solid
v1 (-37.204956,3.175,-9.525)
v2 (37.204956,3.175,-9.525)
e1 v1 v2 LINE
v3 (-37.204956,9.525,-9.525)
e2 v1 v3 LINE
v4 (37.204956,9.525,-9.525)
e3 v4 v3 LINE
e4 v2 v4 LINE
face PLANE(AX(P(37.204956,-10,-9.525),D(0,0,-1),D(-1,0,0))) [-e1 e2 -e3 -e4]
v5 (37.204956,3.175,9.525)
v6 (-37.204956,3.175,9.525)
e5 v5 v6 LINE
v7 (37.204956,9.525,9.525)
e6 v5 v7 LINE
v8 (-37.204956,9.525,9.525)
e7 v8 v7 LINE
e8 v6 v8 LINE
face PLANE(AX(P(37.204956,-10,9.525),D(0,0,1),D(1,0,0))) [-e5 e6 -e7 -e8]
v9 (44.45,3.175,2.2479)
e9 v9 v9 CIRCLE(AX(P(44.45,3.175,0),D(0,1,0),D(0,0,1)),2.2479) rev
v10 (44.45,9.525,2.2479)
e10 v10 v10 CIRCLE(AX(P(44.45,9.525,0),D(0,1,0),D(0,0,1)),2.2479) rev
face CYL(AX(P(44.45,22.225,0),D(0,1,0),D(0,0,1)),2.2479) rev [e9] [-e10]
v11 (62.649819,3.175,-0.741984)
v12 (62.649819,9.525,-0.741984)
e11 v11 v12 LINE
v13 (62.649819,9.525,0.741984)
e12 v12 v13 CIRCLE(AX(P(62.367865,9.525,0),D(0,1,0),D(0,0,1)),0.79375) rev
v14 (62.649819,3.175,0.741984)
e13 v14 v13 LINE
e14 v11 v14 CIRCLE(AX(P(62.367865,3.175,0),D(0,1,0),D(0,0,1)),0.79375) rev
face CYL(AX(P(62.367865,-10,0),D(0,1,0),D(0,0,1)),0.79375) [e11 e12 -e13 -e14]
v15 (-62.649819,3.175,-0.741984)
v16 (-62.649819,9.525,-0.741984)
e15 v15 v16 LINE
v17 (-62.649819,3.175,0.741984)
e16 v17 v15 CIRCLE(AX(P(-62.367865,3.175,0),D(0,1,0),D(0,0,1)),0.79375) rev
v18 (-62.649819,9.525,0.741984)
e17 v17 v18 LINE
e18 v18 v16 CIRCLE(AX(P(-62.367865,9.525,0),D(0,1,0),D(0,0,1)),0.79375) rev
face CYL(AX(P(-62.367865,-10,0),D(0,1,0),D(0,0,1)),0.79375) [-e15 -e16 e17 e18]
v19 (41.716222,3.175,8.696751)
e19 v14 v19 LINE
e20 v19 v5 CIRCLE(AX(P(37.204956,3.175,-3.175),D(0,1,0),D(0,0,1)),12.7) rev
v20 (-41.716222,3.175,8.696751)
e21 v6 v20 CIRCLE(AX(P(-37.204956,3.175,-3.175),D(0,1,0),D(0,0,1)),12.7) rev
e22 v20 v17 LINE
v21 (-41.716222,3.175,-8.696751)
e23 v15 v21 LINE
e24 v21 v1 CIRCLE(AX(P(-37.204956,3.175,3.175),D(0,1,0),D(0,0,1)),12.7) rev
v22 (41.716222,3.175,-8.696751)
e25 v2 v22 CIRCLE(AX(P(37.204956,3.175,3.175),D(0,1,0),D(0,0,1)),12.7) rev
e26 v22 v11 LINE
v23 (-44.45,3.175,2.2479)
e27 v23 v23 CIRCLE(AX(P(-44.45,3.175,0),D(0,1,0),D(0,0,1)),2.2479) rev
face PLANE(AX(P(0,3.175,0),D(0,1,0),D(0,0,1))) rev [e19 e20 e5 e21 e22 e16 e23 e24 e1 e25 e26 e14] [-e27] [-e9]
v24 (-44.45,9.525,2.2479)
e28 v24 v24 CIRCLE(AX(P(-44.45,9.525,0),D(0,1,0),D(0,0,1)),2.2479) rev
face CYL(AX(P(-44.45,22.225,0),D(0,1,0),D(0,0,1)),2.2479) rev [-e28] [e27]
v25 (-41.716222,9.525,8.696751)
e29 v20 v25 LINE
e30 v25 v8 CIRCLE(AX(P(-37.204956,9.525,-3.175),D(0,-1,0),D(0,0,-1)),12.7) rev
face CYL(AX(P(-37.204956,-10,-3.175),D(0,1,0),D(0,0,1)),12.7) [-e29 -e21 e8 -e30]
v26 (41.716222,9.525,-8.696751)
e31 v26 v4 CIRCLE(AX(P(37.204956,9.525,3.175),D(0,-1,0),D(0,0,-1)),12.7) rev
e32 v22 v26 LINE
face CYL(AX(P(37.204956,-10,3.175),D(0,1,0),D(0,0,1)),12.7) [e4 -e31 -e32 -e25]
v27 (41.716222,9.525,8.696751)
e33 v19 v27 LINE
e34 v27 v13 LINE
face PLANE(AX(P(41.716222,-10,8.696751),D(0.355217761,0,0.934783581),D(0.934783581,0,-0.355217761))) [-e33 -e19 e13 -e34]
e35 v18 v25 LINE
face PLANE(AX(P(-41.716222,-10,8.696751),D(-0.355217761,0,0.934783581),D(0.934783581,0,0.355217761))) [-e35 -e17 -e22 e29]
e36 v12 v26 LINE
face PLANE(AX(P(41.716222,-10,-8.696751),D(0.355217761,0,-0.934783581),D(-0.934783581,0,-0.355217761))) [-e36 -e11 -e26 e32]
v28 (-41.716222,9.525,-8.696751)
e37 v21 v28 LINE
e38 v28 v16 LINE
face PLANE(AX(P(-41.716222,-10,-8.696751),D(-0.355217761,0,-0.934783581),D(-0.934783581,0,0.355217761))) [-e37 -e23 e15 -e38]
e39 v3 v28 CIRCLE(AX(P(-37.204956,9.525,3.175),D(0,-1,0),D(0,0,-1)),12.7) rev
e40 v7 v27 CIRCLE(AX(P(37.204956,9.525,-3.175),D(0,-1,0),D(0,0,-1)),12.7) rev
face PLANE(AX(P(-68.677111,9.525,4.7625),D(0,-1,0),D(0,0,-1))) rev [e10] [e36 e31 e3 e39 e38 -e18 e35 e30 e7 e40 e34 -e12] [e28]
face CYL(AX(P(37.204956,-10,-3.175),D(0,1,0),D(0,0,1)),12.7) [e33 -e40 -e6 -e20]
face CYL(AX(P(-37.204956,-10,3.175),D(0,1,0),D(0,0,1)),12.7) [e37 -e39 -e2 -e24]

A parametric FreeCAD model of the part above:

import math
import FreeCAD as App
import Part
import Sketcher
Q = App.Units.Quantity


def edges_at(feature, points):
    """Names of the edges that pass closest to the given points."""
    edges = feature.Shape.Edges
    near = lambda p: min(range(len(edges)), key=lambda i: edges[i].distToShape(Part.Vertex(*p))[0])
    return sorted({f"Edge{near(p) + 1}" for p in points})


def add_polygon(sketch, points):
    """Adds a closed chain of lines whose ends are joined by coincident constraints."""
    first, n = sketch.GeometryCount, len(points)
    for a, b in zip(points, points[1:] + points[:1]):
        sketch.addGeometry(Part.LineSegment(App.Vector(*a, 0), App.Vector(*b, 0)), False)
    for i in range(n):
        sketch.addConstraint(Sketcher.Constraint("Coincident", first + i, 2, first + (i + 1) % n, 1))

doc = App.newDocument("Part")
body = doc.addObject("PartDesign::Body", "Body")

# Sketch on XZ plane
sketch1 = body.newObject("Sketcher::SketchObject", "Sketch")
sketch1.AttachmentSupport = (doc.getObject("XZ_Plane"), [""])
sketch1.MapMode = "FlatFace"
sketch1.addGeometry([
    Part.LineSegment(App.Vector(37.2, -9.5, 0), App.Vector(-37.2, -9.5, 0)),  # 0
    Part.ArcOfCircle(Part.Circle(App.Vector(-37.2, 3.2, 0), App.Vector(0, 0, 1), 12.7), math.radians(-111), math.radians(-90)),  # 1
    Part.LineSegment(App.Vector(-41.7, -8.7, 0), App.Vector(-62.6, -0.7, 0)),  # 2
    Part.ArcOfCircle(Part.Circle(App.Vector(-62.4, 0, 0), App.Vector(0, 0, 1), 0.8), math.radians(111), math.radians(249)),  # 3
    Part.LineSegment(App.Vector(-62.6, 0.7, 0), App.Vector(-41.7, 8.7, 0)),  # 4
    Part.ArcOfCircle(Part.Circle(App.Vector(-37.2, -3.2, 0), App.Vector(0, 0, 1), 12.7), math.radians(90), math.radians(111)),  # 5
    Part.LineSegment(App.Vector(-37.2, 9.5, 0), App.Vector(37.2, 9.5, 0)),  # 6
    Part.ArcOfCircle(Part.Circle(App.Vector(37.2, -3.2, 0), App.Vector(0, 0, 1), 12.7), math.radians(69), math.radians(90)),  # 7
    Part.LineSegment(App.Vector(41.7, 8.7, 0), App.Vector(62.6, 0.7, 0)),  # 8
    Part.ArcOfCircle(Part.Circle(App.Vector(62.4, 0, 0), App.Vector(0, 0, 1), 0.8), math.radians(-69), math.radians(69)),  # 9
    Part.LineSegment(App.Vector(62.6, -0.7, 0), App.Vector(41.7, -8.7, 0)),  # 10
    Part.ArcOfCircle(Part.Circle(App.Vector(37.2, 3.2, 0), App.Vector(0, 0, 1), 12.7), math.radians(-90), math.radians(-69)),  # 11
], False)
sketch1.addConstraint([
    Sketcher.Constraint("Tangent", 0, 2, 1, 2),
    Sketcher.Constraint("Tangent", 1, 1, 2, 1),
    Sketcher.Constraint("Tangent", 2, 2, 3, 2),
    Sketcher.Constraint("Tangent", 3, 1, 4, 1),
    Sketcher.Constraint("Tangent", 4, 2, 5, 2),
    Sketcher.Constraint("Tangent", 5, 1, 6, 1),
    Sketcher.Constraint("Tangent", 6, 2, 7, 2),
    Sketcher.Constraint("Tangent", 7, 1, 8, 1),
    Sketcher.Constraint("Tangent", 8, 2, 9, 2),
    Sketcher.Constraint("Tangent", 9, 1, 10, 1),
    Sketcher.Constraint("Tangent", 10, 2, 11, 2),
    Sketcher.Constraint("Tangent", 11, 1, 0, 1),
    Sketcher.Constraint("Horizontal", 0),
    Sketcher.Constraint("Horizontal", 6),
    Sketcher.Constraint("Equal", 1, 5),
    Sketcher.Constraint("Equal", 5, 7),
    Sketcher.Constraint("Equal", 3, 9),
    Sketcher.Constraint("Equal", 7, 11),
    Sketcher.Constraint("Symmetric", 1, 3, 7, 3, -1, 1),
    Sketcher.Constraint("Symmetric", 3, 3, 9, 3, -1, 1),
    Sketcher.Constraint("Symmetric", 4, 2, 7, 1, -2),
    Sketcher.Constraint("Parallel", 4, 10),
    Sketcher.Constraint("Radius", 1, Q("0.5 in")),
    Sketcher.Constraint("Radius", 3, Q("0.03125 in")),
    Sketcher.Constraint("DistanceY", 5, 3, 1, 3, Q("0.25 in")),
    Sketcher.Constraint("DistanceX", 0, 2, 0, 1, Q("74.409912 mm")),
    Sketcher.Constraint("DistanceX", 1, 1, -1, 1, Q("41.716222 mm")),
])
pad1 = body.newObject("PartDesign::Pad", "Pad")
pad1.Profile = sketch1
pad1.Type = "TwoLengths"
pad1.Length = Q("0.875 in")
pad1.Length2 = 10
pad1.Reversed = True

# Sketch on XY plane
sketch2 = body.newObject("Sketcher::SketchObject", "Sketch001")
sketch2.AttachmentSupport = (doc.getObject("XY_Plane"), [""])
sketch2.MapMode = "FlatFace"
sketch2.AttachmentOffset = App.Placement(App.Vector(0, 0, 0.375 * 25.4), App.Rotation())
add_polygon(sketch2, [(-69, 16), (-69, 10), (84, 10), (84, 16)])  # lines 0-3
sketch2.addConstraint([
    Sketcher.Constraint("Vertical", 0),
    Sketcher.Constraint("Horizontal", 1),
    Sketcher.Constraint("Vertical", 2),
    Sketcher.Constraint("Horizontal", 3),
    Sketcher.Constraint("DistanceY", 0, 2, 0, 1, Q("0.25 in")),
    Sketcher.Constraint("DistanceY", -1, 1, 0, 2, Q("0.375 in")),
    Sketcher.Constraint("DistanceX", 1, 1, 1, 2, Q("153.14354 mm")),
    Sketcher.Constraint("DistanceX", 0, 2, -1, 1, Q("68.677111 mm")),
])
pocket1 = body.newObject("PartDesign::Pocket", "Pocket")
pocket1.Profile = sketch2
pocket1.Length = Q("0.1875 in")

# Sketch on XY plane
sketch3 = body.newObject("Sketcher::SketchObject", "Sketch002")
sketch3.AttachmentSupport = (doc.getObject("XY_Plane"), [""])
sketch3.MapMode = "FlatFace"
sketch3.AttachmentOffset = App.Placement(App.Vector(0, 0, -0.375 * 25.4), App.Rotation())
add_polygon(sketch3, [(68, 16), (68, 10), (-85, 10), (-85, 16)])  # lines 0-3
sketch3.addConstraint([
    Sketcher.Constraint("Vertical", 0),
    Sketcher.Constraint("Horizontal", 1),
    Sketcher.Constraint("Vertical", 2),
    Sketcher.Constraint("Horizontal", 3),
    Sketcher.Constraint("DistanceY", 0, 2, 0, 1, Q("0.25 in")),
    Sketcher.Constraint("DistanceY", -1, 1, 0, 2, Q("0.375 in")),
    Sketcher.Constraint("DistanceX", 1, 2, 1, 1, Q("152.758435 mm")),
    Sketcher.Constraint("DistanceX", -1, 1, 0, 2, Q("67.778532 mm")),
])
pocket2 = body.newObject("PartDesign::Pocket", "Pocket001")
pocket2.Profile = sketch3
pocket2.Length = Q("0.1875 in")
pocket2.Reversed = True
doc.recompute()

fillet = body.newObject("PartDesign::Fillet", "Fillet")
fillet.Base = (pocket2, edges_at(pocket2, [(52.07, 12.7, -4.763)]))
fillet.Radius = Q("0.5 in")
doc.recompute()

fillet2 = body.newObject("PartDesign::Fillet", "Fillet001")
fillet2.Base = (fillet, edges_at(fillet, [(52.07, 12.7, 4.763)]))
fillet2.Radius = Q("0.5 in")
doc.recompute()

fillet3 = body.newObject("PartDesign::Fillet", "Fillet002")
fillet3.Base = (fillet2, edges_at(fillet2, [(-52.07, 12.7, 4.763)]))
fillet3.Radius = Q("0.5 in")
doc.recompute()

fillet4 = body.newObject("PartDesign::Fillet", "Fillet003")
fillet4.Base = (fillet3, edges_at(fillet3, [(-52.07, 12.7, -4.763)]))
fillet4.Radius = Q("0.5 in")

# Sketch on YZ plane
sketch4 = body.newObject("Sketcher::SketchObject", "Sketch003")
sketch4.AttachmentSupport = (doc.getObject("YZ_Plane"), [""])
sketch4.MapMode = "FlatFace"
sketch4.addGeometry(Part.Circle(App.Vector(-168, 0, 0), App.Vector(0, 0, 1), 168), False)
sketch4.addConstraint([
    Sketcher.Constraint("PointOnObject", 0, 3, -1),
    Sketcher.Constraint("Diameter", 0, Q("13.26 in")),
    Sketcher.Constraint("DistanceX", 0, 3, -1, 1, Q("6.63 in")),
])
pocket3 = body.newObject("PartDesign::Pocket", "Pocket002")
pocket3.Profile = sketch4
pocket3.Type = "ThroughAll"
pocket3.Midplane = True

# Sketch on XZ plane
sketch5 = body.newObject("Sketcher::SketchObject", "Sketch004")
sketch5.AttachmentSupport = (doc.getObject("XZ_Plane"), [""])
sketch5.MapMode = "FlatFace"
sketch5.AttachmentOffset = App.Placement(App.Vector(0, 0, -0.875 * 25.4), App.Rotation())
sketch5.addGeometry([
    Part.Circle(App.Vector(-44.5, 0, 0), App.Vector(0, 0, 1), 2.2),
    Part.Circle(App.Vector(44.5, 0, 0), App.Vector(0, 0, 1), 2.2),
], False)
sketch5.addConstraint([
    Sketcher.Constraint("Equal", 0, 1),
    Sketcher.Constraint("Symmetric", 0, 3, 1, 3, -1, 1),
    Sketcher.Constraint("PointOnObject", 0, 3, -1),
    Sketcher.Constraint("Diameter", 0, Q("0.177 in")),
    Sketcher.Constraint("DistanceX", 0, 3, 1, 3, Q("3.5 in")),
])
doc.recompute()
hole = body.newObject("PartDesign::Hole", "Hole")
hole.Profile = sketch5
hole.ThreadType = "None"
hole.Diameter = Q("0.177 in")
hole.DepthType = "ThroughAll"
hole.HoleCutType = "Countersink"
hole.HoleCutDiameter = Q("0.359 in")
hole.HoleCutCountersinkAngle = 82
hole.Reversed = True

# Sketch on XZ plane
sketch6 = body.newObject("Sketcher::SketchObject", "Sketch005")
sketch6.AttachmentSupport = (doc.getObject("XZ_Plane"), [""])
sketch6.MapMode = "FlatFace"
sketch6.AttachmentOffset = App.Placement(App.Vector(0, 0, -0.375 * 25.4), App.Rotation())
add_polygon(sketch6, [(-71, -12), (-71, 12), (72, 12), (72, -12)])  # lines 0-3
sketch6.addConstraint([
    Sketcher.Constraint("Vertical", 0),
    Sketcher.Constraint("Horizontal", 1),
    Sketcher.Constraint("Vertical", 2),
    Sketcher.Constraint("Horizontal", 3),
    Sketcher.Constraint("DistanceX", 1, 1, 1, 2, Q("142.352902 mm")),
    Sketcher.Constraint("DistanceY", 0, 1, 0, 2, Q("23.794518 mm")),
    Sketcher.Constraint("DistanceX", 0, 2, -1, 1, Q("70.77192 mm")),
    Sketcher.Constraint("DistanceY", -1, 1, 0, 2, Q("11.527765 mm")),
])
pocket4 = body.newObject("PartDesign::Pocket", "Pocket003")
pocket4.Profile = sketch6
pocket4.Length = Q("1.08 in")

# Sketch on XZ plane
sketch7 = body.newObject("Sketcher::SketchObject", "Sketch006")
sketch7.AttachmentSupport = (doc.getObject("XZ_Plane"), [""])
sketch7.MapMode = "FlatFace"
sketch7.AttachmentOffset = App.Placement(App.Vector(0, 0, -0.125 * 25.4), App.Rotation())
add_polygon(sketch7, [(-70, -13), (-70, 15), (66, 15), (66, -13)])  # lines 0-3
sketch7.addConstraint([
    Sketcher.Constraint("Vertical", 0),
    Sketcher.Constraint("Horizontal", 1),
    Sketcher.Constraint("Vertical", 2),
    Sketcher.Constraint("Horizontal", 3),
    Sketcher.Constraint("DistanceX", 1, 1, 1, 2, Q("135.994177 mm")),
    Sketcher.Constraint("DistanceY", 0, 1, 0, 2, Q("28.515775 mm")),
    Sketcher.Constraint("DistanceY", -1, 1, 0, 2, Q("15.099341 mm")),
    Sketcher.Constraint("DistanceX", 0, 2, -1, 1, Q("69.934564 mm")),
])
pocket5 = body.newObject("PartDesign::Pocket", "Pocket004")
pocket5.Profile = sketch7
pocket5.Length = Q("1.08 in")
pocket5.Reversed = True

doc.recompute()
